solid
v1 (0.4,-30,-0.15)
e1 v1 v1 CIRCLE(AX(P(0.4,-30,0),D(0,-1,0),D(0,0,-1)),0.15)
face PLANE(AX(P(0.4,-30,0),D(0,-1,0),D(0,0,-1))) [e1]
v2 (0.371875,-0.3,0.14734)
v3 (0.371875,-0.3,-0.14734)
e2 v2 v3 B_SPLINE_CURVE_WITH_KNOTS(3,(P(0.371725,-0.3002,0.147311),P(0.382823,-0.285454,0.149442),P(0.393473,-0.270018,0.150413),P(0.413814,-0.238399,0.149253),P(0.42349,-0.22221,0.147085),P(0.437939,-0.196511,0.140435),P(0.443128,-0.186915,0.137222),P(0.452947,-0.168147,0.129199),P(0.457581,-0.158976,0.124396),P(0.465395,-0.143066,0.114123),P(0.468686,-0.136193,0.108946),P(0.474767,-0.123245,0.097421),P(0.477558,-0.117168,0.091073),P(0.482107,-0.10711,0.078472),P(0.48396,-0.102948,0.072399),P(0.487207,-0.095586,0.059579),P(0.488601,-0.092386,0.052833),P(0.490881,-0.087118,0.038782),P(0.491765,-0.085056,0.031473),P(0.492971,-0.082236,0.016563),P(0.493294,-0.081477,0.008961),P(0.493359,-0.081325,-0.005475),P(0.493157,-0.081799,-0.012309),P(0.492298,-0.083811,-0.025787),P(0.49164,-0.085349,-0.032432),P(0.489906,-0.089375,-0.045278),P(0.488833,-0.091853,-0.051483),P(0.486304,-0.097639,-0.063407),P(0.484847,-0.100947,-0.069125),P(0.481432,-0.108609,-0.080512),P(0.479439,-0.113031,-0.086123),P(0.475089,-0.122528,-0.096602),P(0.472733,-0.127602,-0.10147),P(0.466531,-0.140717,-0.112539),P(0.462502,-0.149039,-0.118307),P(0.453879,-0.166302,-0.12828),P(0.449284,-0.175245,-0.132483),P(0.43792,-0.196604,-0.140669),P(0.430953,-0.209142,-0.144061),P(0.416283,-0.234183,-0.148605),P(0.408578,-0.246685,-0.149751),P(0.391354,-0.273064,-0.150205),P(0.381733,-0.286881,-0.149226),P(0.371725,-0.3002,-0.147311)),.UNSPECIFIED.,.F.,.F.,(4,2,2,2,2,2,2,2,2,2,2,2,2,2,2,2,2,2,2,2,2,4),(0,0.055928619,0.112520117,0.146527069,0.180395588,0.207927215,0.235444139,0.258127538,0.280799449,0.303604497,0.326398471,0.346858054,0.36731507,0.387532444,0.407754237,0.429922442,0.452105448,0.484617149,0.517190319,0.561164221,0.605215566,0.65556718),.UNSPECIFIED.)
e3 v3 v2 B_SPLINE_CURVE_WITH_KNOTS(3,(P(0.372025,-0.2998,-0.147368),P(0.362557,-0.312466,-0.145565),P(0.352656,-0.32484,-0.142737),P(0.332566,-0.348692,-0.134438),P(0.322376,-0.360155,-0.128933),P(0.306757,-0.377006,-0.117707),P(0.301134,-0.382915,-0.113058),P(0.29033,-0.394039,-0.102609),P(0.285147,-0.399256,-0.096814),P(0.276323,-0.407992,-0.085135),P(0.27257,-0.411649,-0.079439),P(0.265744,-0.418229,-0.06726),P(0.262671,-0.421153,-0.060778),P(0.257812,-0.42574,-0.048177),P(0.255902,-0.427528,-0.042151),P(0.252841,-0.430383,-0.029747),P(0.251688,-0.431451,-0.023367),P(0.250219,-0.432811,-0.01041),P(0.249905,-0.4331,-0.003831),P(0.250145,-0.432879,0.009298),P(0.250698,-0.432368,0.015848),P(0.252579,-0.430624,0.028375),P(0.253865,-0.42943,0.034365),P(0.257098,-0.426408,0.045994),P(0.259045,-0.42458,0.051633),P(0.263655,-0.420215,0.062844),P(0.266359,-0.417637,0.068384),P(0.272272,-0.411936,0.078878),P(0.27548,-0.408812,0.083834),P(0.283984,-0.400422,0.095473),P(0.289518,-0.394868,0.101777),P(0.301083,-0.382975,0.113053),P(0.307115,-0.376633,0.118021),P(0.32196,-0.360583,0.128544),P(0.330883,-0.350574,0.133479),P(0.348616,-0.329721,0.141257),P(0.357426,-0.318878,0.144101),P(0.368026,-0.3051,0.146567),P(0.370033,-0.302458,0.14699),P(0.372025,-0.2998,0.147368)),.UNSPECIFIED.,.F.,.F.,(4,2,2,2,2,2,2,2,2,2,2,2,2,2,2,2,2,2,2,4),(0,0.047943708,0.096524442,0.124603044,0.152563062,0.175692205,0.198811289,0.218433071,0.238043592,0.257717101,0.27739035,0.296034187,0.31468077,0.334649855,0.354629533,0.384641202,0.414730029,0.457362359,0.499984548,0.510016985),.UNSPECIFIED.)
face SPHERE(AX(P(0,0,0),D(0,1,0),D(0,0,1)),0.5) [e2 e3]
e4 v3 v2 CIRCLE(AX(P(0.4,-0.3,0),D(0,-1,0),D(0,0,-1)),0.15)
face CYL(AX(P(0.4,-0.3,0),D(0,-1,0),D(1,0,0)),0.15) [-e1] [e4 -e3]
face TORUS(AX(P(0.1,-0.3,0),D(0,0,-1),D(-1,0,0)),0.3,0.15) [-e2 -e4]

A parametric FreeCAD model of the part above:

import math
import FreeCAD as App
import Part
import Sketcher

doc = App.newDocument("Part")
body = doc.addObject("PartDesign::Body", "Body")

sketch1 = body.newObject("Sketcher::SketchObject", "Sketch")
sketch1.AttachmentSupport = (doc.getObject("YZ_Plane"), [""])
sketch1.MapMode = "FlatFace"
sketch1.addGeometry(Part.Circle(App.Vector(0, 0, 0), App.Vector(0, 0, 1), 0.15), False)
sketch1.addConstraint(Sketcher.Constraint("Coincident", 0, 3, -1, 1))
sketch1.addConstraint(Sketcher.Constraint("Diameter", 0, 0.3))

sketch2 = body.newObject("Sketcher::SketchObject", "Sketch001")
sketch2.AttachmentSupport = (doc.getObject("XY_Plane"), [""])
sketch2.MapMode = "FlatFace"
sketch2.addGeometry(Part.LineSegment(App.Vector(0, 0, 0), App.Vector(0.1, 0, 0)), False)
sketch2.addGeometry(Part.ArcOfCircle(Part.Circle(App.Vector(0.1, -0.3, 0), App.Vector(0, 0, 1), 0.3), math.radians(0), math.radians(90)), False)
sketch2.addGeometry(Part.LineSegment(App.Vector(0.4, -0.3, 0), App.Vector(0.4, -30, 0)), False)
sketch2.addConstraint(Sketcher.Constraint("Tangent", 0, 2, 1, 2))
sketch2.addConstraint(Sketcher.Constraint("Tangent", 1, 1, 2, 1))
sketch2.addConstraint(Sketcher.Constraint("Horizontal", 0))
sketch2.addConstraint(Sketcher.Constraint("Vertical", 2))
sketch2.addConstraint(Sketcher.Constraint("Coincident", 0, 1, -1, 1))
sketch2.addConstraint(Sketcher.Constraint("Radius", 1, 0.3))
sketch2.addConstraint(Sketcher.Constraint("DistanceX", 0, 1, 0, 2, 0.1))
sketch2.addConstraint(Sketcher.Constraint("DistanceY", 2, 2, 2, 1, 29.7))
doc.recompute()

additivepipe = body.newObject("PartDesign::AdditivePipe", "AdditivePipe")
additivepipe.Profile = sketch1
additivepipe.Spine = (sketch2, ["Edge1", "Edge2", "Edge3"])

sketch3 = body.newObject("Sketcher::SketchObject", "Sketch002")
sketch3.AttachmentSupport = (doc.getObject("YZ_Plane"), [""])
sketch3.MapMode = "FlatFace"
sketch3.addGeometry(Part.LineSegment(App.Vector(-0.5, 0, 0), App.Vector(0.5, 0, 0)), False)
sketch3.addGeometry(Part.ArcOfCircle(Part.Circle(App.Vector(0, 0, 0), App.Vector(0, 0, 1), 0.5), math.radians(180), math.radians(360)), False)
sketch3.addConstraint(Sketcher.Constraint("Coincident", 0, 1, 1, 1))
sketch3.addConstraint(Sketcher.Constraint("Coincident", 1, 2, 0, 2))
sketch3.addConstraint(Sketcher.Constraint("Horizontal", 0))
sketch3.addConstraint(Sketcher.Constraint("Coincident", 1, 3, -1, 1))
sketch3.addConstraint(Sketcher.Constraint("PointOnObject", 0, 1, -1))
sketch3.addConstraint(Sketcher.Constraint("Radius", 1, 0.5))
revolution = body.newObject("PartDesign::Revolution", "Revolution")
revolution.Profile = sketch3
revolution.ReferenceAxis = (sketch3, ["H_Axis"])
revolution.Angle = 360

doc.recompute()
